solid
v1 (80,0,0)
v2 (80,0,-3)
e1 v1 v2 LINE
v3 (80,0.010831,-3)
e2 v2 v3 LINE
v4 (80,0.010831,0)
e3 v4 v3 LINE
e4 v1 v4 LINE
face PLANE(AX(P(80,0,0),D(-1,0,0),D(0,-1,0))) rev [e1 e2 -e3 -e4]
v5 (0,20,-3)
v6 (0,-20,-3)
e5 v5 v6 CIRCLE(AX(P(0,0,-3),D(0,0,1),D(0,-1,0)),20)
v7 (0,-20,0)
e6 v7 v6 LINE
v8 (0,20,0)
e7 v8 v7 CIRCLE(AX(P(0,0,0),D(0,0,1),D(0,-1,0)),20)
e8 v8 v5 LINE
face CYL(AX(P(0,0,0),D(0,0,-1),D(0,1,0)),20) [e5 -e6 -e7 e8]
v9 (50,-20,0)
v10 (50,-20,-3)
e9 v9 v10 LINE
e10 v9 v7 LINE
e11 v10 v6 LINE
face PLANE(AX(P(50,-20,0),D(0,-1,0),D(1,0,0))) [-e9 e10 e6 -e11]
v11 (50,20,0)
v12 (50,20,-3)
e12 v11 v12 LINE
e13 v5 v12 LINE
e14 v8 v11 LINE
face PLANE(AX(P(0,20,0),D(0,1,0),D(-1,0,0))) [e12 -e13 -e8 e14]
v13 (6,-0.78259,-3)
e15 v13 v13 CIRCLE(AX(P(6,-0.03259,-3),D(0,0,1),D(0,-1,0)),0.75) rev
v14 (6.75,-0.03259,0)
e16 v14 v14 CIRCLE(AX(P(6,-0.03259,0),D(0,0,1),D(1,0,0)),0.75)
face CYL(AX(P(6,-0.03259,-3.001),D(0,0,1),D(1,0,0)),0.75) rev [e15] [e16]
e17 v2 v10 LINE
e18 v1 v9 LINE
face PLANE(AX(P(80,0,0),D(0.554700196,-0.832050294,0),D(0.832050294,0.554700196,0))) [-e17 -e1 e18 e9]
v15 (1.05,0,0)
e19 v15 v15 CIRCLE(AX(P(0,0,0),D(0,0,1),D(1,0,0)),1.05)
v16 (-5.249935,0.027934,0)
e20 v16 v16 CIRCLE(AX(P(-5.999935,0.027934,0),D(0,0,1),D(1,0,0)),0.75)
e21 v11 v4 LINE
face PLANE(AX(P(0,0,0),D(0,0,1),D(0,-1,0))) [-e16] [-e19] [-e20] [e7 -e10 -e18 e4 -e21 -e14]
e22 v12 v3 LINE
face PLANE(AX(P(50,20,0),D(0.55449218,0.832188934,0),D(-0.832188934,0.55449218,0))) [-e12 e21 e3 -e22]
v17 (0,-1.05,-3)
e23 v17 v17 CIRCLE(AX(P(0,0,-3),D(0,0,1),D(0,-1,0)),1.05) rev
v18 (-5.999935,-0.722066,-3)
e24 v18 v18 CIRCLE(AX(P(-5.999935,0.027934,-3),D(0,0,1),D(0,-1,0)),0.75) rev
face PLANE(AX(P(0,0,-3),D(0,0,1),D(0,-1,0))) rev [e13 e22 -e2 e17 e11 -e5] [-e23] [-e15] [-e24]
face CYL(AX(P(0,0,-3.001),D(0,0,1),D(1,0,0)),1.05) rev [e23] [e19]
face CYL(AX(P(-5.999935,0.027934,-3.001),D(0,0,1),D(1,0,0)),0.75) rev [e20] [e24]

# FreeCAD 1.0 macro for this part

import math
import FreeCAD as App
import Part
import Sketcher

doc = App.newDocument("Part")
params = doc.addObject("Spreadsheet::Sheet", "Params")
for row, (alias, value) in enumerate([
    ("sketch1_radius", "20 mm"),
    ("sketch1_width", "50 mm"),
    ("pad1_length", "3 mm"),
    ("sketch2_diameter", "2.1 mm"),
    ("sketch3_diameter", "1.5 mm"),
    ("sketch4_diameter", "1.5 mm"),
], start=1):
    params.set(f"A{row}", alias)
    params.set(f"B{row}", "=" + value)
    params.setAlias(f"B{row}", alias)

body = doc.addObject("PartDesign::Body", "Body")

sketch1 = doc.addObject("Sketcher::SketchObject", "Sketch")
body.addObject(sketch1)
sketch1.AttachmentSupport = (doc.XZ_Plane, [""])
sketch1.MapMode = "FlatFace"
sketch1.addGeometry([
    Part.LineSegment(App.Vector(0, 20, 0), App.Vector(50, 20, 0)),
    Part.LineSegment(App.Vector(50, 20, 0), App.Vector(80, 0, 0)),
    Part.LineSegment(App.Vector(80, 0, 0), App.Vector(80, -0.011, 0)),
    Part.LineSegment(App.Vector(80, -0.011, 0), App.Vector(50, -20, 0)),
    Part.LineSegment(App.Vector(50, -20, 0), App.Vector(0, -20, 0)),
    Part.ArcOfCircle(Part.Circle(App.Vector(0, 0, 0), App.Vector(0, 0, 1), 20), math.radians(90), math.radians(270)),
], False)
sketch1.addConstraint([
    Sketcher.Constraint("Coincident", 0, 2, 1, 1),
    Sketcher.Constraint("Coincident", 1, 2, 2, 1),
    Sketcher.Constraint("Coincident", 2, 2, 3, 1),
    Sketcher.Constraint("Coincident", 3, 2, 4, 1),
    Sketcher.Constraint("Tangent", 4, 2, 5, 2),
    Sketcher.Constraint("Tangent", 5, 1, 0, 1),
    Sketcher.Constraint("Horizontal", 0),
    Sketcher.Constraint("Vertical", 2),
    Sketcher.Constraint("Horizontal", 4),
    Sketcher.Constraint("Coincident", 5, 3, -1, 1),
    Sketcher.Constraint("PointOnObject", 1, 2, -1),
    Sketcher.Constraint("Vertical", 0, 2, 3, 2),
    Sketcher.Constraint("Radius", 5, 20.0),
    Sketcher.Constraint("DistanceX", 0, 1, 0, 2, 50.0),
    Sketcher.Constraint("DistanceX", -1, 1, 1, 2, 80.0),
    Sketcher.Constraint("DistanceY", 2, 2, 2, 1, 0.010831),
])
sketch1.setExpression("Constraints[12]", "Params.sketch1_radius")
sketch1.setExpression("Constraints[13]", "Params.sketch1_width")
pad1 = doc.addObject("PartDesign::Pad", "Pad")
body.addObject(pad1)
pad1.Profile = sketch1
pad1.setExpression("Length", "Params.pad1_length")
pad1.Reversed = True
body2 = doc.addObject("PartDesign::Body", "Body001")
doc.recompute()

body.Placement = App.Placement(App.Vector(0, 0, 0), App.Rotation(App.Vector(1, 0, 0), 90))
boolean = doc.addObject("PartDesign::Boolean", "Boolean")
body2.addObject(boolean)
boolean.Type = "Fuse"
boolean.addObjects([body])

sketch2 = doc.addObject("Sketcher::SketchObject", "Sketch001")
body2.addObject(sketch2)
sketch2.AttachmentSupport = (doc.getObject("XY_Plane001"), [""])
sketch2.MapMode = "FlatFace"
sketch2.AttachmentOffset = App.Placement(App.Vector(0, 0, 3), App.Rotation())
sketch2.addGeometry(Part.Circle(App.Vector(0, 0, 0), App.Vector(0, 0, 1), 1.1), False)
sketch2.addConstraint([
    Sketcher.Constraint("Coincident", 0, 3, -1, 1),
    Sketcher.Constraint("Diameter", 0, 2.1),
])
sketch2.setExpression("Constraints[1]", "Params.sketch2_diameter")
pocket1 = doc.addObject("PartDesign::Pocket", "Pocket")
body2.addObject(pocket1)
pocket1.Profile = sketch2
pocket1.Type = "UpToFirst"

sketch3 = doc.addObject("Sketcher::SketchObject", "Sketch002")
body2.addObject(sketch3)
sketch3.AttachmentSupport = (doc.getObject("XY_Plane001"), [""])
sketch3.MapMode = "FlatFace"
sketch3.AttachmentOffset = App.Placement(App.Vector(0, 0, 3), App.Rotation())
sketch3.addGeometry(Part.Circle(App.Vector(6, 0, 0), App.Vector(0, 0, 1), 0.8), False)
sketch3.addConstraint([
    Sketcher.Constraint("Diameter", 0, 1.5),
    Sketcher.Constraint("DistanceX", -1, 1, 0, 3, 6.0),
    Sketcher.Constraint("DistanceY", 0, 3, -1, 1, 0.03259),
])
sketch3.setExpression("Constraints[0]", "Params.sketch3_diameter")
pocket2 = doc.addObject("PartDesign::Pocket", "Pocket001")
body2.addObject(pocket2)
pocket2.Profile = sketch3
pocket2.Type = "UpToFirst"

sketch4 = doc.addObject("Sketcher::SketchObject", "Sketch003")
body2.addObject(sketch4)
sketch4.AttachmentSupport = (doc.getObject("XY_Plane001"), [""])
sketch4.MapMode = "FlatFace"
sketch4.AttachmentOffset = App.Placement(App.Vector(0, 0, 3), App.Rotation())
sketch4.addGeometry(Part.Circle(App.Vector(-6, 0, 0), App.Vector(0, 0, 1), 0.8), False)
sketch4.addConstraint([
    Sketcher.Constraint("Diameter", 0, 1.5),
    Sketcher.Constraint("DistanceX", 0, 3, -1, 1, 5.999935),
    Sketcher.Constraint("DistanceY", -1, 1, 0, 3, 0.027934),
])
sketch4.setExpression("Constraints[0]", "Params.sketch4_diameter")
pocket3 = doc.addObject("PartDesign::Pocket", "Pocket002")
body2.addObject(pocket3)
pocket3.Profile = sketch4
pocket3.Type = "UpToFirst"
body3 = doc.addObject("PartDesign::Body", "Body002")
doc.recompute()

body2.Placement = App.Placement(App.Vector(0, 0, -3), App.Rotation(App.Vector(0, 0, 1), 0))
boolean2 = doc.addObject("PartDesign::Boolean", "Boolean001")
body3.addObject(boolean2)
boolean2.Type = "Fuse"
boolean2.addObjects([body2])

doc.recompute()
